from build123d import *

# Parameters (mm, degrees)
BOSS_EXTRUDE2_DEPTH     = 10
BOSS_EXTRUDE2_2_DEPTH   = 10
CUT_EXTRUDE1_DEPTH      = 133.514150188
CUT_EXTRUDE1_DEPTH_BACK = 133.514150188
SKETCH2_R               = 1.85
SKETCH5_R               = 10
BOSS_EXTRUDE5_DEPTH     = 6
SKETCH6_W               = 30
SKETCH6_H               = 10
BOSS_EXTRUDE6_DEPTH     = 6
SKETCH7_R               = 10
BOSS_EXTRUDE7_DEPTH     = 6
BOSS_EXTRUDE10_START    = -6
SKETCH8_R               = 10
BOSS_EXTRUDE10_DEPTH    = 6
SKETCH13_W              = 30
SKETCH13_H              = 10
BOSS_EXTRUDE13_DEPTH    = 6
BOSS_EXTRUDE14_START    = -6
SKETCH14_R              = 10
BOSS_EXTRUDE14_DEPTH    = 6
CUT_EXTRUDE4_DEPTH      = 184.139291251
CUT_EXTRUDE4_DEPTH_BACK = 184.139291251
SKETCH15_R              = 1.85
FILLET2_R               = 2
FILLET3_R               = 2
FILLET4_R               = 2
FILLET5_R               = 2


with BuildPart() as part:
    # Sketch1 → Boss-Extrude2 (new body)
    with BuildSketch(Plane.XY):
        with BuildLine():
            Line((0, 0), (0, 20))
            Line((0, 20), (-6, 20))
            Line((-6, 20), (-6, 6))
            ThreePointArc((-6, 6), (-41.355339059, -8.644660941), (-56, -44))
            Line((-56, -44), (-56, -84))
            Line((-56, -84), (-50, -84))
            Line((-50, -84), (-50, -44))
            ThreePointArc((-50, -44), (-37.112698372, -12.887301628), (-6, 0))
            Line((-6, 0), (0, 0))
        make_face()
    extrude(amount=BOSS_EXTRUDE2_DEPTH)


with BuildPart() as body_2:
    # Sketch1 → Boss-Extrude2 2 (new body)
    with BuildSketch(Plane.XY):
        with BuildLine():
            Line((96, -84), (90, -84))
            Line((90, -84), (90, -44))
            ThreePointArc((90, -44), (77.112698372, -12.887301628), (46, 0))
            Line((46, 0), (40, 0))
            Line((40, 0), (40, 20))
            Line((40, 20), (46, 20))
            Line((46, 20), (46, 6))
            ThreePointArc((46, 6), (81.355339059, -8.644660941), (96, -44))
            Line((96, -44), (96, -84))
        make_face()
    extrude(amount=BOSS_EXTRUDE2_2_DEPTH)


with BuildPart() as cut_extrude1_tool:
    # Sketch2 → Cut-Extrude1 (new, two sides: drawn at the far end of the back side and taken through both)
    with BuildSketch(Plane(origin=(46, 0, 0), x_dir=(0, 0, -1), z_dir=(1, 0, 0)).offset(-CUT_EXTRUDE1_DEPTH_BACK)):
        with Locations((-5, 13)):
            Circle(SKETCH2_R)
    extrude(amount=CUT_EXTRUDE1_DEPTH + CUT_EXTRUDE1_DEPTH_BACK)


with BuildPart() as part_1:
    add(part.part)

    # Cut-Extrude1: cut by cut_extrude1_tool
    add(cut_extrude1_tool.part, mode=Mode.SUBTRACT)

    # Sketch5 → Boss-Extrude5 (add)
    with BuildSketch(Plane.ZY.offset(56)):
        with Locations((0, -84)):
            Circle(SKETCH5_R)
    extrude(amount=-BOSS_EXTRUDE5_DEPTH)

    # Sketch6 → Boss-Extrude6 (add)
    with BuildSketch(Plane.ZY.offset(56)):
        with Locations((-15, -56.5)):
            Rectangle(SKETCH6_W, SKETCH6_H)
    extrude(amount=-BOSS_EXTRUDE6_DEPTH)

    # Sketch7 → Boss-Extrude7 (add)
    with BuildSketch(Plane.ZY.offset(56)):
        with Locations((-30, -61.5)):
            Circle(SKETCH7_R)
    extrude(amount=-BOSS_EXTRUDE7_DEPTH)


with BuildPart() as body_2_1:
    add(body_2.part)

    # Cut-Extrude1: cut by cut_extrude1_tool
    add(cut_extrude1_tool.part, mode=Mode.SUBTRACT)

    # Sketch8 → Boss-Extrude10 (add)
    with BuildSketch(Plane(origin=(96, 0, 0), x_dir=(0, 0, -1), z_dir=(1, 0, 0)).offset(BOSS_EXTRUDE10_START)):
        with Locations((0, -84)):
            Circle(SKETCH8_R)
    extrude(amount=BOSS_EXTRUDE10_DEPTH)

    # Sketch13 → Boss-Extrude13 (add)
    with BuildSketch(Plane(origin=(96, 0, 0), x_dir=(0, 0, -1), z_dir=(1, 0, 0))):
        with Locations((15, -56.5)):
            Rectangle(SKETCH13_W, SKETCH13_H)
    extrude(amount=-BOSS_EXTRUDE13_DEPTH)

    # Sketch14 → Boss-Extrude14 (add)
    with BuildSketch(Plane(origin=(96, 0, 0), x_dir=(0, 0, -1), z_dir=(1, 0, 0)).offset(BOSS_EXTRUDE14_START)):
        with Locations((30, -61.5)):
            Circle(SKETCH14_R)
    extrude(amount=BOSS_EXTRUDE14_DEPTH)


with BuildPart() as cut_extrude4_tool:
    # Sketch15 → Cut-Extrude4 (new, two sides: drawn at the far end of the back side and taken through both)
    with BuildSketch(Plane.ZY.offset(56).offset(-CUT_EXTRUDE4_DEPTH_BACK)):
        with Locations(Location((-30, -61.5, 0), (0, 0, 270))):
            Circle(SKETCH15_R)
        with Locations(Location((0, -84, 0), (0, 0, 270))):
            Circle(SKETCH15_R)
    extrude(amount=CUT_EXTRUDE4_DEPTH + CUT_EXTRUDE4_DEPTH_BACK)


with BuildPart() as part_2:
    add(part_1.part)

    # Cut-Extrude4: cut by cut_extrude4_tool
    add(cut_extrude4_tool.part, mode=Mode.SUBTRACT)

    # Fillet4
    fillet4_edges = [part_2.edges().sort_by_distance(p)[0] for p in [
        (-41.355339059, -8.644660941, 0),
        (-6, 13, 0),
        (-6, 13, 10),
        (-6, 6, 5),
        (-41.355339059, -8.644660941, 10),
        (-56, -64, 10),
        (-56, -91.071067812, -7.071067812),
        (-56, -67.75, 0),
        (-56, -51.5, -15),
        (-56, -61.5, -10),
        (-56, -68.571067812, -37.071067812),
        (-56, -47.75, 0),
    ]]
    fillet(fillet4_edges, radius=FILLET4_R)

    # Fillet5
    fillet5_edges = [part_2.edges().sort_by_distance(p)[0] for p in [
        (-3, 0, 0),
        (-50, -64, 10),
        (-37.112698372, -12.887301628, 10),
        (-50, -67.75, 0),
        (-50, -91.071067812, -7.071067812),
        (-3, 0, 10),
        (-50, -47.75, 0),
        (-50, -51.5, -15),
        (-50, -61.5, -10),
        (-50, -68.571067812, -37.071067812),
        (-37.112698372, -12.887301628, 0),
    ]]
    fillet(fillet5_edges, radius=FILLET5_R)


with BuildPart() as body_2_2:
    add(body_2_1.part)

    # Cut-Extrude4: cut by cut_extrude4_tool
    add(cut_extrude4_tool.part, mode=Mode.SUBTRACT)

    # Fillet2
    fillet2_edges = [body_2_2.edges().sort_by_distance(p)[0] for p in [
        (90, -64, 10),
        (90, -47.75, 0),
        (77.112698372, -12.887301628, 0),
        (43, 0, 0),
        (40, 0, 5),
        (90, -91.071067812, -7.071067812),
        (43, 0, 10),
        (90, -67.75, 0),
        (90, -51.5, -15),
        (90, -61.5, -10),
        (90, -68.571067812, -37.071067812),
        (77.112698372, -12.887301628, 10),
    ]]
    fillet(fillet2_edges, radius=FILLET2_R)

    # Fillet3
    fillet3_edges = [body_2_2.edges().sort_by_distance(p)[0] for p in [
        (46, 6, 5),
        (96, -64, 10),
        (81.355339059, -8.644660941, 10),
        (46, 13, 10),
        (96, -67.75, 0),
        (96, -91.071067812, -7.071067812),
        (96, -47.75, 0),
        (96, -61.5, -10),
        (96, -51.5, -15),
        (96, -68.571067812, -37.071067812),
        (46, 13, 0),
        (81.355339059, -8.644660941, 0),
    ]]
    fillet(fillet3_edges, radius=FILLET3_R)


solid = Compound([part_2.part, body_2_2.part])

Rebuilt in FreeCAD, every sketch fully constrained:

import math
import FreeCAD as App
import Part
import Sketcher

V = App.Vector


def edges_at(feature, points):
    """Names of the edges that pass closest to the given points."""
    edges = feature.Shape.Edges
    near = lambda p: min(range(len(edges)), key=lambda i: edges[i].distToShape(Part.Vertex(*p))[0])
    return sorted({f"Edge{near(p) + 1}" for p in points})


def add_polygon(sketch, points):
    """Adds a closed chain of lines whose ends are joined by coincident constraints."""
    first, n = sketch.GeometryCount, len(points)
    for a, b in zip(points, points[1:] + points[:1]):
        sketch.addGeometry(Part.LineSegment(App.Vector(*a, 0), App.Vector(*b, 0)), False)
    for i in range(n):
        sketch.addConstraint(Sketcher.Constraint("Coincident", first + i, 2, first + (i + 1) % n, 1))

doc = App.newDocument("Part")
body = doc.addObject("PartDesign::Body", "Body")

sketch1 = doc.addObject("Sketcher::SketchObject", "Sketch")
body.addObject(sketch1)
sketch1.AttachmentSupport = (doc.XY_Plane, [""])
sketch1.MapMode = "FlatFace"
sketch1.addGeometry(Part.LineSegment(V(0, 0, 0), V(0, 20, 0)), False)
sketch1.addGeometry(Part.LineSegment(V(0, 20, 0), V(-6, 20, 0)), False)
sketch1.addGeometry(Part.LineSegment(V(-6, 20, 0), V(-6, 6, 0)), False)
sketch1.addGeometry(Part.ArcOfCircle(Part.Circle(V(-6, -44, 0), V(0, 0, 1), 50), math.radians(90), math.radians(180)), False)
sketch1.addGeometry(Part.LineSegment(V(-56, -44, 0), V(-56, -84, 0)), False)
sketch1.addGeometry(Part.LineSegment(V(-56, -84, 0), V(-50, -84, 0)), False)
sketch1.addGeometry(Part.LineSegment(V(-50, -84, 0), V(-50, -44, 0)), False)
sketch1.addGeometry(Part.ArcOfCircle(Part.Circle(V(-6, -44, 0), V(0, 0, 1), 44), math.radians(90), math.radians(180)), False)
sketch1.addGeometry(Part.LineSegment(V(-6, 0, 0), V(0, 0, 0)), False)
sketch1.addConstraint(Sketcher.Constraint("Coincident", 0, 2, 1, 1))
sketch1.addConstraint(Sketcher.Constraint("Coincident", 1, 2, 2, 1))
sketch1.addConstraint(Sketcher.Constraint("Coincident", 2, 2, 3, 1))
sketch1.addConstraint(Sketcher.Constraint("Tangent", 3, 2, 4, 1))
sketch1.addConstraint(Sketcher.Constraint("Coincident", 4, 2, 5, 1))
sketch1.addConstraint(Sketcher.Constraint("Coincident", 5, 2, 6, 1))
sketch1.addConstraint(Sketcher.Constraint("Tangent", 6, 2, 7, 2))
sketch1.addConstraint(Sketcher.Constraint("Tangent", 7, 1, 8, 1))
sketch1.addConstraint(Sketcher.Constraint("Coincident", 8, 2, 0, 1))
sketch1.addConstraint(Sketcher.Constraint("Vertical", 0))
sketch1.addConstraint(Sketcher.Constraint("Horizontal", 1))
sketch1.addConstraint(Sketcher.Constraint("Vertical", 2))
sketch1.addConstraint(Sketcher.Constraint("Vertical", 4))
sketch1.addConstraint(Sketcher.Constraint("Horizontal", 5))
sketch1.addConstraint(Sketcher.Constraint("Vertical", 6))
sketch1.addConstraint(Sketcher.Constraint("Horizontal", 8))
sketch1.addConstraint(Sketcher.Constraint("Coincident", 8, 2, -1, 1))
sketch1.addConstraint(Sketcher.Constraint("Coincident", 7, 3, 3, 3))
sketch1.addConstraint(Sketcher.Constraint("Vertical", 7, 3, 1, 2))
sketch1.addConstraint(Sketcher.Constraint("Equal", 1, 5))
sketch1.addConstraint(Sketcher.Constraint("Radius", 3, 50.0))
sketch1.addConstraint(Sketcher.Constraint("Radius", 7, 44.0))
sketch1.addConstraint(Sketcher.Constraint("DistanceY", 0, 1, 0, 2, 20.0))
sketch1.addConstraint(Sketcher.Constraint("DistanceY", 4, 2, 4, 1, 40.0))
pad1 = doc.addObject("PartDesign::Pad", "Pad")
body.addObject(pad1)
pad1.Profile = sketch1
pad1.Length = 10
body2 = doc.addObject("PartDesign::Body", "Body001")

sketch2 = doc.addObject("Sketcher::SketchObject", "Sketch001")
body2.addObject(sketch2)
sketch2.AttachmentSupport = (doc.getObject("XY_Plane001"), [""])
sketch2.MapMode = "FlatFace"
sketch2.addGeometry(Part.LineSegment(V(90, -84, 0), V(96, -84, 0)), False)
sketch2.addGeometry(Part.LineSegment(V(96, -84, 0), V(96, -44, 0)), False)
sketch2.addGeometry(Part.ArcOfCircle(Part.Circle(V(46, -44, 0), V(0, 0, 1), 50), math.radians(0), math.radians(90)), False)
sketch2.addGeometry(Part.LineSegment(V(46, 6, 0), V(46, 20, 0)), False)
sketch2.addGeometry(Part.LineSegment(V(46, 20, 0), V(40, 20, 0)), False)
sketch2.addGeometry(Part.LineSegment(V(40, 20, 0), V(40, 0, 0)), False)
sketch2.addGeometry(Part.LineSegment(V(40, 0, 0), V(46, 0, 0)), False)
sketch2.addGeometry(Part.ArcOfCircle(Part.Circle(V(46, -44, 0), V(0, 0, 1), 44), math.radians(0), math.radians(90)), False)
sketch2.addGeometry(Part.LineSegment(V(90, -44, 0), V(90, -84, 0)), False)
sketch2.addConstraint(Sketcher.Constraint("Coincident", 0, 2, 1, 1))
sketch2.addConstraint(Sketcher.Constraint("Tangent", 1, 2, 2, 1))
sketch2.addConstraint(Sketcher.Constraint("Coincident", 2, 2, 3, 1))
sketch2.addConstraint(Sketcher.Constraint("Coincident", 3, 2, 4, 1))
sketch2.addConstraint(Sketcher.Constraint("Coincident", 4, 2, 5, 1))
sketch2.addConstraint(Sketcher.Constraint("Coincident", 5, 2, 6, 1))
sketch2.addConstraint(Sketcher.Constraint("Tangent", 6, 2, 7, 2))
sketch2.addConstraint(Sketcher.Constraint("Tangent", 7, 1, 8, 1))
sketch2.addConstraint(Sketcher.Constraint("Coincident", 8, 2, 0, 1))
sketch2.addConstraint(Sketcher.Constraint("Horizontal", 0))
sketch2.addConstraint(Sketcher.Constraint("Vertical", 1))
sketch2.addConstraint(Sketcher.Constraint("Vertical", 3))
sketch2.addConstraint(Sketcher.Constraint("Horizontal", 4))
sketch2.addConstraint(Sketcher.Constraint("Vertical", 5))
sketch2.addConstraint(Sketcher.Constraint("Horizontal", 6))
sketch2.addConstraint(Sketcher.Constraint("Vertical", 8))
sketch2.addConstraint(Sketcher.Constraint("Coincident", 7, 3, 2, 3))
sketch2.addConstraint(Sketcher.Constraint("PointOnObject", 5, 2, -1))
sketch2.addConstraint(Sketcher.Constraint("Vertical", 7, 3, 2, 2))
sketch2.addConstraint(Sketcher.Constraint("Equal", 0, 4))
sketch2.addConstraint(Sketcher.Constraint("Radius", 2, 50.0))
sketch2.addConstraint(Sketcher.Constraint("Radius", 7, 44.0))
sketch2.addConstraint(Sketcher.Constraint("DistanceY", 1, 1, 1, 2, 40.0))
sketch2.addConstraint(Sketcher.Constraint("DistanceY", 3, 1, 3, 2, 14.0))
sketch2.addConstraint(Sketcher.Constraint("DistanceX", -1, 1, 2, 3, 46.0))
pad2 = doc.addObject("PartDesign::Pad", "Pad001")
body2.addObject(pad2)
pad2.Profile = sketch2
pad2.Length = 10
body3 = doc.addObject("PartDesign::Body", "Body002")

sketch3 = doc.addObject("Sketcher::SketchObject", "Sketch002")
body3.addObject(sketch3)
sketch3.AttachmentSupport = (doc.getObject("YZ_Plane002"), [""])
sketch3.MapMode = "FlatFace"
sketch3.AttachmentOffset = App.Placement(V(0, 0, 46), App.Rotation())
sketch3.addGeometry(Part.Circle(V(13, 5, 0), V(0, 0, 1), 1.85), False)
sketch3.addConstraint(Sketcher.Constraint("Diameter", 0, 3.7))
sketch3.addConstraint(Sketcher.Constraint("DistanceX", -1, 1, 0, 3, 13.0))
sketch3.addConstraint(Sketcher.Constraint("DistanceY", -1, 1, 0, 3, 5.0))
pad3 = doc.addObject("PartDesign::Pad", "Pad002")
body3.addObject(pad3)
pad3.Profile = sketch3
pad3.Type = "TwoLengths"
pad3.Length = 133.51415
pad3.Length2 = 133.51415
doc.recompute()

body4 = doc.addObject("PartDesign::Body", "Body003")
body4.BaseFeature = body3
boolean = doc.addObject("PartDesign::Boolean", "Boolean")
body.addObject(boolean)
boolean.Type = "Cut"
boolean.addObjects([body4])
doc.recompute()

sketch4 = doc.addObject("Sketcher::SketchObject", "Sketch003")
body.addObject(sketch4)
sketch4.AttachmentSupport = (doc.YZ_Plane, [""])
sketch4.MapMode = "FlatFace"
sketch4.AttachmentOffset = App.Placement(V(0, 0, -56), App.Rotation())
sketch4.addGeometry(Part.Circle(V(-84, 0, 0), V(0, 0, 1), 10), False)
sketch4.addConstraint(Sketcher.Constraint("PointOnObject", 0, 3, -1))
sketch4.addConstraint(Sketcher.Constraint("Diameter", 0, 20.0))
sketch4.addConstraint(Sketcher.Constraint("DistanceX", 0, 3, -1, 1, 84.0))
pad4 = doc.addObject("PartDesign::Pad", "Pad003")
body.addObject(pad4)
pad4.Profile = sketch4
pad4.Length = 6

sketch5 = doc.addObject("Sketcher::SketchObject", "Sketch004")
body.addObject(sketch5)
sketch5.AttachmentSupport = (doc.YZ_Plane, [""])
sketch5.MapMode = "FlatFace"
sketch5.AttachmentOffset = App.Placement(V(0, 0, -56), App.Rotation())
add_polygon(sketch5, [(-51.5, -30), (-61.5, -30), (-61.5, 0), (-51.5, 0)])
sketch5.addConstraint(Sketcher.Constraint("Horizontal", 0))
sketch5.addConstraint(Sketcher.Constraint("Vertical", 1))
sketch5.addConstraint(Sketcher.Constraint("Horizontal", 2))
sketch5.addConstraint(Sketcher.Constraint("Vertical", 3))
sketch5.addConstraint(Sketcher.Constraint("PointOnObject", 1, 2, -1))
sketch5.addConstraint(Sketcher.Constraint("DistanceX", 0, 2, 0, 1, 10.0))
sketch5.addConstraint(Sketcher.Constraint("DistanceY", 1, 1, 1, 2, 30.0))
sketch5.addConstraint(Sketcher.Constraint("DistanceX", 0, 2, -1, 1, 61.5))
pad5 = doc.addObject("PartDesign::Pad", "Pad004")
body.addObject(pad5)
pad5.Profile = sketch5
pad5.Length = 6

sketch6 = doc.addObject("Sketcher::SketchObject", "Sketch005")
body.addObject(sketch6)
sketch6.AttachmentSupport = (doc.YZ_Plane, [""])
sketch6.MapMode = "FlatFace"
sketch6.AttachmentOffset = App.Placement(V(0, 0, -56), App.Rotation())
sketch6.addGeometry(Part.Circle(V(-61.5, -30, 0), V(0, 0, 1), 10), False)
sketch6.addConstraint(Sketcher.Constraint("Diameter", 0, 20.0))
sketch6.addConstraint(Sketcher.Constraint("DistanceY", 0, 3, -1, 1, 30.0))
sketch6.addConstraint(Sketcher.Constraint("DistanceX", 0, 3, -1, 1, 61.5))
pad6 = doc.addObject("PartDesign::Pad", "Pad005")
body.addObject(pad6)
pad6.Profile = sketch6
pad6.Length = 6
doc.recompute()

boolean2 = doc.addObject("PartDesign::Boolean", "Boolean001")
body2.addObject(boolean2)
boolean2.Type = "Cut"
boolean2.addObjects([body3])

sketch7 = doc.addObject("Sketcher::SketchObject", "Sketch006")
body2.addObject(sketch7)
sketch7.AttachmentSupport = (doc.getObject("YZ_Plane001"), [""])
sketch7.MapMode = "FlatFace"
sketch7.AttachmentOffset = App.Placement(V(0, 0, 90), App.Rotation())
sketch7.addGeometry(Part.Circle(V(-84, 0, 0), V(0, 0, 1), 10), False)
sketch7.addConstraint(Sketcher.Constraint("PointOnObject", 0, 3, -1))
sketch7.addConstraint(Sketcher.Constraint("Diameter", 0, 20.0))
sketch7.addConstraint(Sketcher.Constraint("DistanceX", 0, 3, -1, 1, 84.0))
pad7 = doc.addObject("PartDesign::Pad", "Pad006")
body2.addObject(pad7)
pad7.Profile = sketch7
pad7.Length = 6

sketch8 = doc.addObject("Sketcher::SketchObject", "Sketch007")
body2.addObject(sketch8)
sketch8.AttachmentSupport = (doc.getObject("YZ_Plane001"), [""])
sketch8.MapMode = "FlatFace"
sketch8.AttachmentOffset = App.Placement(V(0, 0, 96), App.Rotation())
add_polygon(sketch8, [(-51.5, 0), (-61.5, 0), (-61.5, -30), (-51.5, -30)])
sketch8.addConstraint(Sketcher.Constraint("Horizontal", 0))
sketch8.addConstraint(Sketcher.Constraint("Vertical", 1))
sketch8.addConstraint(Sketcher.Constraint("Horizontal", 2))
sketch8.addConstraint(Sketcher.Constraint("Vertical", 3))
sketch8.addConstraint(Sketcher.Constraint("PointOnObject", 0, 2, -1))
sketch8.addConstraint(Sketcher.Constraint("DistanceX", 0, 2, 0, 1, 10.0))
sketch8.addConstraint(Sketcher.Constraint("DistanceY", 1, 2, 1, 1, 30.0))
sketch8.addConstraint(Sketcher.Constraint("DistanceX", 0, 2, -1, 1, 61.5))
pad8 = doc.addObject("PartDesign::Pad", "Pad007")
body2.addObject(pad8)
pad8.Profile = sketch8
pad8.Length = 6
pad8.Reversed = True

sketch9 = doc.addObject("Sketcher::SketchObject", "Sketch008")
body2.addObject(sketch9)
sketch9.AttachmentSupport = (doc.getObject("YZ_Plane001"), [""])
sketch9.MapMode = "FlatFace"
sketch9.AttachmentOffset = App.Placement(V(0, 0, 90), App.Rotation())
sketch9.addGeometry(Part.Circle(V(-61.5, -30, 0), V(0, 0, 1), 10), False)
sketch9.addConstraint(Sketcher.Constraint("Diameter", 0, 20.0))
sketch9.addConstraint(Sketcher.Constraint("DistanceY", 0, 3, -1, 1, 30.0))
sketch9.addConstraint(Sketcher.Constraint("DistanceX", 0, 3, -1, 1, 61.5))
pad9 = doc.addObject("PartDesign::Pad", "Pad008")
body2.addObject(pad9)
pad9.Profile = sketch9
pad9.Length = 6
body5 = doc.addObject("PartDesign::Body", "Body004")
body5.AllowCompound = True

sketch10 = doc.addObject("Sketcher::SketchObject", "Sketch009")
body5.addObject(sketch10)
sketch10.AttachmentSupport = (doc.getObject("YZ_Plane004"), [""])
sketch10.MapMode = "FlatFace"
sketch10.AttachmentOffset = App.Placement(V(0, 0, -56), App.Rotation())
sketch10.addGeometry(Part.Circle(V(-61.5, -30, 0), V(0, 0, 1), 1.85), False)
sketch10.addGeometry(Part.Circle(V(-84, 0, 0), V(0, 0, 1), 1.85), False)
sketch10.addConstraint(Sketcher.Constraint("Equal", 0, 1))
sketch10.addConstraint(Sketcher.Constraint("PointOnObject", 1, 3, -1))
sketch10.addConstraint(Sketcher.Constraint("Diameter", 0, 3.7))
sketch10.addConstraint(Sketcher.Constraint("DistanceY", 0, 3, -1, 1, 30.0))
sketch10.addConstraint(Sketcher.Constraint("DistanceX", 1, 3, -1, 1, 84.0))
sketch10.addConstraint(Sketcher.Constraint("DistanceX", 0, 3, -1, 1, 61.5))
pad10 = doc.addObject("PartDesign::Pad", "Pad009")
body5.addObject(pad10)
pad10.Profile = sketch10
pad10.Type = "TwoLengths"
pad10.Length = 184.139291
pad10.Length2 = 184.139291
pad10.Reversed = True
doc.recompute()

body6 = doc.addObject("PartDesign::Body", "Body005")
body6.BaseFeature = body5
boolean3 = doc.addObject("PartDesign::Boolean", "Boolean002")
body.addObject(boolean3)
boolean3.Type = "Cut"
boolean3.addObjects([body6])
doc.recompute()

fillet = doc.addObject("PartDesign::Fillet", "Fillet")
body.addObject(fillet)
fillet.Base = (boolean3, edges_at(boolean3, [
    (-41.355, -8.645, 0),
    (-6, 13, 0),
    (-6, 13, 10),
    (-6, 6, 5),
    (-41.355, -8.645, 10),
    (-56, -64, 10),
    (-56, -91.071, -7.071),
    (-56, -67.75, 0),
    (-56, -51.5, -15),
    (-56, -61.5, -10),
    (-56, -68.571, -37.071),
    (-56, -47.75, 0),
]))
fillet.Radius = 2
doc.recompute()

fillet2 = doc.addObject("PartDesign::Fillet", "Fillet001")
body.addObject(fillet2)
fillet2.Base = (fillet, edges_at(fillet, [
    (-3, 0, 0),
    (-50, -64, 10),
    (-37.113, -12.887, 10),
    (-50, -67.75, 0),
    (-50, -91.071, -7.071),
    (-3, 0, 10),
    (-50, -47.75, 0),
    (-50, -51.5, -15),
    (-50, -61.5, -10),
    (-50, -68.571, -37.071),
    (-37.113, -12.887, 0),
]))
fillet2.Radius = 2
doc.recompute()

boolean4 = doc.addObject("PartDesign::Boolean", "Boolean003")
body2.addObject(boolean4)
boolean4.Type = "Cut"
boolean4.addObjects([body5])
doc.recompute()

fillet3 = doc.addObject("PartDesign::Fillet", "Fillet002")
body2.addObject(fillet3)
fillet3.Base = (boolean4, edges_at(boolean4, [
    (90, -64, 10),
    (90, -47.75, 0),
    (77.113, -12.887, 0),
    (43, 0, 0),
    (40, 0, 5),
    (90, -91.071, -7.071),
    (43, 0, 10),
    (90, -67.75, 0),
    (90, -51.5, -15),
    (90, -61.5, -10),
    (90, -68.571, -37.071),
    (77.113, -12.887, 10),
]))
fillet3.Radius = 2
doc.recompute()

fillet4 = doc.addObject("PartDesign::Fillet", "Fillet003")
body2.addObject(fillet4)
fillet4.Base = (fillet3, edges_at(fillet3, [
    (46, 6, 5),
    (96, -64, 10),
    (81.355, -8.645, 10),
    (46, 13, 10),
    (96, -67.75, 0),
    (96, -91.071, -7.071),
    (96, -47.75, 0),
    (96, -61.5, -10),
    (96, -51.5, -15),
    (96, -68.571, -37.071),
    (46, 13, 0),
    (81.355, -8.645, 0),
]))
fillet4.Radius = 2

doc.recompute()
